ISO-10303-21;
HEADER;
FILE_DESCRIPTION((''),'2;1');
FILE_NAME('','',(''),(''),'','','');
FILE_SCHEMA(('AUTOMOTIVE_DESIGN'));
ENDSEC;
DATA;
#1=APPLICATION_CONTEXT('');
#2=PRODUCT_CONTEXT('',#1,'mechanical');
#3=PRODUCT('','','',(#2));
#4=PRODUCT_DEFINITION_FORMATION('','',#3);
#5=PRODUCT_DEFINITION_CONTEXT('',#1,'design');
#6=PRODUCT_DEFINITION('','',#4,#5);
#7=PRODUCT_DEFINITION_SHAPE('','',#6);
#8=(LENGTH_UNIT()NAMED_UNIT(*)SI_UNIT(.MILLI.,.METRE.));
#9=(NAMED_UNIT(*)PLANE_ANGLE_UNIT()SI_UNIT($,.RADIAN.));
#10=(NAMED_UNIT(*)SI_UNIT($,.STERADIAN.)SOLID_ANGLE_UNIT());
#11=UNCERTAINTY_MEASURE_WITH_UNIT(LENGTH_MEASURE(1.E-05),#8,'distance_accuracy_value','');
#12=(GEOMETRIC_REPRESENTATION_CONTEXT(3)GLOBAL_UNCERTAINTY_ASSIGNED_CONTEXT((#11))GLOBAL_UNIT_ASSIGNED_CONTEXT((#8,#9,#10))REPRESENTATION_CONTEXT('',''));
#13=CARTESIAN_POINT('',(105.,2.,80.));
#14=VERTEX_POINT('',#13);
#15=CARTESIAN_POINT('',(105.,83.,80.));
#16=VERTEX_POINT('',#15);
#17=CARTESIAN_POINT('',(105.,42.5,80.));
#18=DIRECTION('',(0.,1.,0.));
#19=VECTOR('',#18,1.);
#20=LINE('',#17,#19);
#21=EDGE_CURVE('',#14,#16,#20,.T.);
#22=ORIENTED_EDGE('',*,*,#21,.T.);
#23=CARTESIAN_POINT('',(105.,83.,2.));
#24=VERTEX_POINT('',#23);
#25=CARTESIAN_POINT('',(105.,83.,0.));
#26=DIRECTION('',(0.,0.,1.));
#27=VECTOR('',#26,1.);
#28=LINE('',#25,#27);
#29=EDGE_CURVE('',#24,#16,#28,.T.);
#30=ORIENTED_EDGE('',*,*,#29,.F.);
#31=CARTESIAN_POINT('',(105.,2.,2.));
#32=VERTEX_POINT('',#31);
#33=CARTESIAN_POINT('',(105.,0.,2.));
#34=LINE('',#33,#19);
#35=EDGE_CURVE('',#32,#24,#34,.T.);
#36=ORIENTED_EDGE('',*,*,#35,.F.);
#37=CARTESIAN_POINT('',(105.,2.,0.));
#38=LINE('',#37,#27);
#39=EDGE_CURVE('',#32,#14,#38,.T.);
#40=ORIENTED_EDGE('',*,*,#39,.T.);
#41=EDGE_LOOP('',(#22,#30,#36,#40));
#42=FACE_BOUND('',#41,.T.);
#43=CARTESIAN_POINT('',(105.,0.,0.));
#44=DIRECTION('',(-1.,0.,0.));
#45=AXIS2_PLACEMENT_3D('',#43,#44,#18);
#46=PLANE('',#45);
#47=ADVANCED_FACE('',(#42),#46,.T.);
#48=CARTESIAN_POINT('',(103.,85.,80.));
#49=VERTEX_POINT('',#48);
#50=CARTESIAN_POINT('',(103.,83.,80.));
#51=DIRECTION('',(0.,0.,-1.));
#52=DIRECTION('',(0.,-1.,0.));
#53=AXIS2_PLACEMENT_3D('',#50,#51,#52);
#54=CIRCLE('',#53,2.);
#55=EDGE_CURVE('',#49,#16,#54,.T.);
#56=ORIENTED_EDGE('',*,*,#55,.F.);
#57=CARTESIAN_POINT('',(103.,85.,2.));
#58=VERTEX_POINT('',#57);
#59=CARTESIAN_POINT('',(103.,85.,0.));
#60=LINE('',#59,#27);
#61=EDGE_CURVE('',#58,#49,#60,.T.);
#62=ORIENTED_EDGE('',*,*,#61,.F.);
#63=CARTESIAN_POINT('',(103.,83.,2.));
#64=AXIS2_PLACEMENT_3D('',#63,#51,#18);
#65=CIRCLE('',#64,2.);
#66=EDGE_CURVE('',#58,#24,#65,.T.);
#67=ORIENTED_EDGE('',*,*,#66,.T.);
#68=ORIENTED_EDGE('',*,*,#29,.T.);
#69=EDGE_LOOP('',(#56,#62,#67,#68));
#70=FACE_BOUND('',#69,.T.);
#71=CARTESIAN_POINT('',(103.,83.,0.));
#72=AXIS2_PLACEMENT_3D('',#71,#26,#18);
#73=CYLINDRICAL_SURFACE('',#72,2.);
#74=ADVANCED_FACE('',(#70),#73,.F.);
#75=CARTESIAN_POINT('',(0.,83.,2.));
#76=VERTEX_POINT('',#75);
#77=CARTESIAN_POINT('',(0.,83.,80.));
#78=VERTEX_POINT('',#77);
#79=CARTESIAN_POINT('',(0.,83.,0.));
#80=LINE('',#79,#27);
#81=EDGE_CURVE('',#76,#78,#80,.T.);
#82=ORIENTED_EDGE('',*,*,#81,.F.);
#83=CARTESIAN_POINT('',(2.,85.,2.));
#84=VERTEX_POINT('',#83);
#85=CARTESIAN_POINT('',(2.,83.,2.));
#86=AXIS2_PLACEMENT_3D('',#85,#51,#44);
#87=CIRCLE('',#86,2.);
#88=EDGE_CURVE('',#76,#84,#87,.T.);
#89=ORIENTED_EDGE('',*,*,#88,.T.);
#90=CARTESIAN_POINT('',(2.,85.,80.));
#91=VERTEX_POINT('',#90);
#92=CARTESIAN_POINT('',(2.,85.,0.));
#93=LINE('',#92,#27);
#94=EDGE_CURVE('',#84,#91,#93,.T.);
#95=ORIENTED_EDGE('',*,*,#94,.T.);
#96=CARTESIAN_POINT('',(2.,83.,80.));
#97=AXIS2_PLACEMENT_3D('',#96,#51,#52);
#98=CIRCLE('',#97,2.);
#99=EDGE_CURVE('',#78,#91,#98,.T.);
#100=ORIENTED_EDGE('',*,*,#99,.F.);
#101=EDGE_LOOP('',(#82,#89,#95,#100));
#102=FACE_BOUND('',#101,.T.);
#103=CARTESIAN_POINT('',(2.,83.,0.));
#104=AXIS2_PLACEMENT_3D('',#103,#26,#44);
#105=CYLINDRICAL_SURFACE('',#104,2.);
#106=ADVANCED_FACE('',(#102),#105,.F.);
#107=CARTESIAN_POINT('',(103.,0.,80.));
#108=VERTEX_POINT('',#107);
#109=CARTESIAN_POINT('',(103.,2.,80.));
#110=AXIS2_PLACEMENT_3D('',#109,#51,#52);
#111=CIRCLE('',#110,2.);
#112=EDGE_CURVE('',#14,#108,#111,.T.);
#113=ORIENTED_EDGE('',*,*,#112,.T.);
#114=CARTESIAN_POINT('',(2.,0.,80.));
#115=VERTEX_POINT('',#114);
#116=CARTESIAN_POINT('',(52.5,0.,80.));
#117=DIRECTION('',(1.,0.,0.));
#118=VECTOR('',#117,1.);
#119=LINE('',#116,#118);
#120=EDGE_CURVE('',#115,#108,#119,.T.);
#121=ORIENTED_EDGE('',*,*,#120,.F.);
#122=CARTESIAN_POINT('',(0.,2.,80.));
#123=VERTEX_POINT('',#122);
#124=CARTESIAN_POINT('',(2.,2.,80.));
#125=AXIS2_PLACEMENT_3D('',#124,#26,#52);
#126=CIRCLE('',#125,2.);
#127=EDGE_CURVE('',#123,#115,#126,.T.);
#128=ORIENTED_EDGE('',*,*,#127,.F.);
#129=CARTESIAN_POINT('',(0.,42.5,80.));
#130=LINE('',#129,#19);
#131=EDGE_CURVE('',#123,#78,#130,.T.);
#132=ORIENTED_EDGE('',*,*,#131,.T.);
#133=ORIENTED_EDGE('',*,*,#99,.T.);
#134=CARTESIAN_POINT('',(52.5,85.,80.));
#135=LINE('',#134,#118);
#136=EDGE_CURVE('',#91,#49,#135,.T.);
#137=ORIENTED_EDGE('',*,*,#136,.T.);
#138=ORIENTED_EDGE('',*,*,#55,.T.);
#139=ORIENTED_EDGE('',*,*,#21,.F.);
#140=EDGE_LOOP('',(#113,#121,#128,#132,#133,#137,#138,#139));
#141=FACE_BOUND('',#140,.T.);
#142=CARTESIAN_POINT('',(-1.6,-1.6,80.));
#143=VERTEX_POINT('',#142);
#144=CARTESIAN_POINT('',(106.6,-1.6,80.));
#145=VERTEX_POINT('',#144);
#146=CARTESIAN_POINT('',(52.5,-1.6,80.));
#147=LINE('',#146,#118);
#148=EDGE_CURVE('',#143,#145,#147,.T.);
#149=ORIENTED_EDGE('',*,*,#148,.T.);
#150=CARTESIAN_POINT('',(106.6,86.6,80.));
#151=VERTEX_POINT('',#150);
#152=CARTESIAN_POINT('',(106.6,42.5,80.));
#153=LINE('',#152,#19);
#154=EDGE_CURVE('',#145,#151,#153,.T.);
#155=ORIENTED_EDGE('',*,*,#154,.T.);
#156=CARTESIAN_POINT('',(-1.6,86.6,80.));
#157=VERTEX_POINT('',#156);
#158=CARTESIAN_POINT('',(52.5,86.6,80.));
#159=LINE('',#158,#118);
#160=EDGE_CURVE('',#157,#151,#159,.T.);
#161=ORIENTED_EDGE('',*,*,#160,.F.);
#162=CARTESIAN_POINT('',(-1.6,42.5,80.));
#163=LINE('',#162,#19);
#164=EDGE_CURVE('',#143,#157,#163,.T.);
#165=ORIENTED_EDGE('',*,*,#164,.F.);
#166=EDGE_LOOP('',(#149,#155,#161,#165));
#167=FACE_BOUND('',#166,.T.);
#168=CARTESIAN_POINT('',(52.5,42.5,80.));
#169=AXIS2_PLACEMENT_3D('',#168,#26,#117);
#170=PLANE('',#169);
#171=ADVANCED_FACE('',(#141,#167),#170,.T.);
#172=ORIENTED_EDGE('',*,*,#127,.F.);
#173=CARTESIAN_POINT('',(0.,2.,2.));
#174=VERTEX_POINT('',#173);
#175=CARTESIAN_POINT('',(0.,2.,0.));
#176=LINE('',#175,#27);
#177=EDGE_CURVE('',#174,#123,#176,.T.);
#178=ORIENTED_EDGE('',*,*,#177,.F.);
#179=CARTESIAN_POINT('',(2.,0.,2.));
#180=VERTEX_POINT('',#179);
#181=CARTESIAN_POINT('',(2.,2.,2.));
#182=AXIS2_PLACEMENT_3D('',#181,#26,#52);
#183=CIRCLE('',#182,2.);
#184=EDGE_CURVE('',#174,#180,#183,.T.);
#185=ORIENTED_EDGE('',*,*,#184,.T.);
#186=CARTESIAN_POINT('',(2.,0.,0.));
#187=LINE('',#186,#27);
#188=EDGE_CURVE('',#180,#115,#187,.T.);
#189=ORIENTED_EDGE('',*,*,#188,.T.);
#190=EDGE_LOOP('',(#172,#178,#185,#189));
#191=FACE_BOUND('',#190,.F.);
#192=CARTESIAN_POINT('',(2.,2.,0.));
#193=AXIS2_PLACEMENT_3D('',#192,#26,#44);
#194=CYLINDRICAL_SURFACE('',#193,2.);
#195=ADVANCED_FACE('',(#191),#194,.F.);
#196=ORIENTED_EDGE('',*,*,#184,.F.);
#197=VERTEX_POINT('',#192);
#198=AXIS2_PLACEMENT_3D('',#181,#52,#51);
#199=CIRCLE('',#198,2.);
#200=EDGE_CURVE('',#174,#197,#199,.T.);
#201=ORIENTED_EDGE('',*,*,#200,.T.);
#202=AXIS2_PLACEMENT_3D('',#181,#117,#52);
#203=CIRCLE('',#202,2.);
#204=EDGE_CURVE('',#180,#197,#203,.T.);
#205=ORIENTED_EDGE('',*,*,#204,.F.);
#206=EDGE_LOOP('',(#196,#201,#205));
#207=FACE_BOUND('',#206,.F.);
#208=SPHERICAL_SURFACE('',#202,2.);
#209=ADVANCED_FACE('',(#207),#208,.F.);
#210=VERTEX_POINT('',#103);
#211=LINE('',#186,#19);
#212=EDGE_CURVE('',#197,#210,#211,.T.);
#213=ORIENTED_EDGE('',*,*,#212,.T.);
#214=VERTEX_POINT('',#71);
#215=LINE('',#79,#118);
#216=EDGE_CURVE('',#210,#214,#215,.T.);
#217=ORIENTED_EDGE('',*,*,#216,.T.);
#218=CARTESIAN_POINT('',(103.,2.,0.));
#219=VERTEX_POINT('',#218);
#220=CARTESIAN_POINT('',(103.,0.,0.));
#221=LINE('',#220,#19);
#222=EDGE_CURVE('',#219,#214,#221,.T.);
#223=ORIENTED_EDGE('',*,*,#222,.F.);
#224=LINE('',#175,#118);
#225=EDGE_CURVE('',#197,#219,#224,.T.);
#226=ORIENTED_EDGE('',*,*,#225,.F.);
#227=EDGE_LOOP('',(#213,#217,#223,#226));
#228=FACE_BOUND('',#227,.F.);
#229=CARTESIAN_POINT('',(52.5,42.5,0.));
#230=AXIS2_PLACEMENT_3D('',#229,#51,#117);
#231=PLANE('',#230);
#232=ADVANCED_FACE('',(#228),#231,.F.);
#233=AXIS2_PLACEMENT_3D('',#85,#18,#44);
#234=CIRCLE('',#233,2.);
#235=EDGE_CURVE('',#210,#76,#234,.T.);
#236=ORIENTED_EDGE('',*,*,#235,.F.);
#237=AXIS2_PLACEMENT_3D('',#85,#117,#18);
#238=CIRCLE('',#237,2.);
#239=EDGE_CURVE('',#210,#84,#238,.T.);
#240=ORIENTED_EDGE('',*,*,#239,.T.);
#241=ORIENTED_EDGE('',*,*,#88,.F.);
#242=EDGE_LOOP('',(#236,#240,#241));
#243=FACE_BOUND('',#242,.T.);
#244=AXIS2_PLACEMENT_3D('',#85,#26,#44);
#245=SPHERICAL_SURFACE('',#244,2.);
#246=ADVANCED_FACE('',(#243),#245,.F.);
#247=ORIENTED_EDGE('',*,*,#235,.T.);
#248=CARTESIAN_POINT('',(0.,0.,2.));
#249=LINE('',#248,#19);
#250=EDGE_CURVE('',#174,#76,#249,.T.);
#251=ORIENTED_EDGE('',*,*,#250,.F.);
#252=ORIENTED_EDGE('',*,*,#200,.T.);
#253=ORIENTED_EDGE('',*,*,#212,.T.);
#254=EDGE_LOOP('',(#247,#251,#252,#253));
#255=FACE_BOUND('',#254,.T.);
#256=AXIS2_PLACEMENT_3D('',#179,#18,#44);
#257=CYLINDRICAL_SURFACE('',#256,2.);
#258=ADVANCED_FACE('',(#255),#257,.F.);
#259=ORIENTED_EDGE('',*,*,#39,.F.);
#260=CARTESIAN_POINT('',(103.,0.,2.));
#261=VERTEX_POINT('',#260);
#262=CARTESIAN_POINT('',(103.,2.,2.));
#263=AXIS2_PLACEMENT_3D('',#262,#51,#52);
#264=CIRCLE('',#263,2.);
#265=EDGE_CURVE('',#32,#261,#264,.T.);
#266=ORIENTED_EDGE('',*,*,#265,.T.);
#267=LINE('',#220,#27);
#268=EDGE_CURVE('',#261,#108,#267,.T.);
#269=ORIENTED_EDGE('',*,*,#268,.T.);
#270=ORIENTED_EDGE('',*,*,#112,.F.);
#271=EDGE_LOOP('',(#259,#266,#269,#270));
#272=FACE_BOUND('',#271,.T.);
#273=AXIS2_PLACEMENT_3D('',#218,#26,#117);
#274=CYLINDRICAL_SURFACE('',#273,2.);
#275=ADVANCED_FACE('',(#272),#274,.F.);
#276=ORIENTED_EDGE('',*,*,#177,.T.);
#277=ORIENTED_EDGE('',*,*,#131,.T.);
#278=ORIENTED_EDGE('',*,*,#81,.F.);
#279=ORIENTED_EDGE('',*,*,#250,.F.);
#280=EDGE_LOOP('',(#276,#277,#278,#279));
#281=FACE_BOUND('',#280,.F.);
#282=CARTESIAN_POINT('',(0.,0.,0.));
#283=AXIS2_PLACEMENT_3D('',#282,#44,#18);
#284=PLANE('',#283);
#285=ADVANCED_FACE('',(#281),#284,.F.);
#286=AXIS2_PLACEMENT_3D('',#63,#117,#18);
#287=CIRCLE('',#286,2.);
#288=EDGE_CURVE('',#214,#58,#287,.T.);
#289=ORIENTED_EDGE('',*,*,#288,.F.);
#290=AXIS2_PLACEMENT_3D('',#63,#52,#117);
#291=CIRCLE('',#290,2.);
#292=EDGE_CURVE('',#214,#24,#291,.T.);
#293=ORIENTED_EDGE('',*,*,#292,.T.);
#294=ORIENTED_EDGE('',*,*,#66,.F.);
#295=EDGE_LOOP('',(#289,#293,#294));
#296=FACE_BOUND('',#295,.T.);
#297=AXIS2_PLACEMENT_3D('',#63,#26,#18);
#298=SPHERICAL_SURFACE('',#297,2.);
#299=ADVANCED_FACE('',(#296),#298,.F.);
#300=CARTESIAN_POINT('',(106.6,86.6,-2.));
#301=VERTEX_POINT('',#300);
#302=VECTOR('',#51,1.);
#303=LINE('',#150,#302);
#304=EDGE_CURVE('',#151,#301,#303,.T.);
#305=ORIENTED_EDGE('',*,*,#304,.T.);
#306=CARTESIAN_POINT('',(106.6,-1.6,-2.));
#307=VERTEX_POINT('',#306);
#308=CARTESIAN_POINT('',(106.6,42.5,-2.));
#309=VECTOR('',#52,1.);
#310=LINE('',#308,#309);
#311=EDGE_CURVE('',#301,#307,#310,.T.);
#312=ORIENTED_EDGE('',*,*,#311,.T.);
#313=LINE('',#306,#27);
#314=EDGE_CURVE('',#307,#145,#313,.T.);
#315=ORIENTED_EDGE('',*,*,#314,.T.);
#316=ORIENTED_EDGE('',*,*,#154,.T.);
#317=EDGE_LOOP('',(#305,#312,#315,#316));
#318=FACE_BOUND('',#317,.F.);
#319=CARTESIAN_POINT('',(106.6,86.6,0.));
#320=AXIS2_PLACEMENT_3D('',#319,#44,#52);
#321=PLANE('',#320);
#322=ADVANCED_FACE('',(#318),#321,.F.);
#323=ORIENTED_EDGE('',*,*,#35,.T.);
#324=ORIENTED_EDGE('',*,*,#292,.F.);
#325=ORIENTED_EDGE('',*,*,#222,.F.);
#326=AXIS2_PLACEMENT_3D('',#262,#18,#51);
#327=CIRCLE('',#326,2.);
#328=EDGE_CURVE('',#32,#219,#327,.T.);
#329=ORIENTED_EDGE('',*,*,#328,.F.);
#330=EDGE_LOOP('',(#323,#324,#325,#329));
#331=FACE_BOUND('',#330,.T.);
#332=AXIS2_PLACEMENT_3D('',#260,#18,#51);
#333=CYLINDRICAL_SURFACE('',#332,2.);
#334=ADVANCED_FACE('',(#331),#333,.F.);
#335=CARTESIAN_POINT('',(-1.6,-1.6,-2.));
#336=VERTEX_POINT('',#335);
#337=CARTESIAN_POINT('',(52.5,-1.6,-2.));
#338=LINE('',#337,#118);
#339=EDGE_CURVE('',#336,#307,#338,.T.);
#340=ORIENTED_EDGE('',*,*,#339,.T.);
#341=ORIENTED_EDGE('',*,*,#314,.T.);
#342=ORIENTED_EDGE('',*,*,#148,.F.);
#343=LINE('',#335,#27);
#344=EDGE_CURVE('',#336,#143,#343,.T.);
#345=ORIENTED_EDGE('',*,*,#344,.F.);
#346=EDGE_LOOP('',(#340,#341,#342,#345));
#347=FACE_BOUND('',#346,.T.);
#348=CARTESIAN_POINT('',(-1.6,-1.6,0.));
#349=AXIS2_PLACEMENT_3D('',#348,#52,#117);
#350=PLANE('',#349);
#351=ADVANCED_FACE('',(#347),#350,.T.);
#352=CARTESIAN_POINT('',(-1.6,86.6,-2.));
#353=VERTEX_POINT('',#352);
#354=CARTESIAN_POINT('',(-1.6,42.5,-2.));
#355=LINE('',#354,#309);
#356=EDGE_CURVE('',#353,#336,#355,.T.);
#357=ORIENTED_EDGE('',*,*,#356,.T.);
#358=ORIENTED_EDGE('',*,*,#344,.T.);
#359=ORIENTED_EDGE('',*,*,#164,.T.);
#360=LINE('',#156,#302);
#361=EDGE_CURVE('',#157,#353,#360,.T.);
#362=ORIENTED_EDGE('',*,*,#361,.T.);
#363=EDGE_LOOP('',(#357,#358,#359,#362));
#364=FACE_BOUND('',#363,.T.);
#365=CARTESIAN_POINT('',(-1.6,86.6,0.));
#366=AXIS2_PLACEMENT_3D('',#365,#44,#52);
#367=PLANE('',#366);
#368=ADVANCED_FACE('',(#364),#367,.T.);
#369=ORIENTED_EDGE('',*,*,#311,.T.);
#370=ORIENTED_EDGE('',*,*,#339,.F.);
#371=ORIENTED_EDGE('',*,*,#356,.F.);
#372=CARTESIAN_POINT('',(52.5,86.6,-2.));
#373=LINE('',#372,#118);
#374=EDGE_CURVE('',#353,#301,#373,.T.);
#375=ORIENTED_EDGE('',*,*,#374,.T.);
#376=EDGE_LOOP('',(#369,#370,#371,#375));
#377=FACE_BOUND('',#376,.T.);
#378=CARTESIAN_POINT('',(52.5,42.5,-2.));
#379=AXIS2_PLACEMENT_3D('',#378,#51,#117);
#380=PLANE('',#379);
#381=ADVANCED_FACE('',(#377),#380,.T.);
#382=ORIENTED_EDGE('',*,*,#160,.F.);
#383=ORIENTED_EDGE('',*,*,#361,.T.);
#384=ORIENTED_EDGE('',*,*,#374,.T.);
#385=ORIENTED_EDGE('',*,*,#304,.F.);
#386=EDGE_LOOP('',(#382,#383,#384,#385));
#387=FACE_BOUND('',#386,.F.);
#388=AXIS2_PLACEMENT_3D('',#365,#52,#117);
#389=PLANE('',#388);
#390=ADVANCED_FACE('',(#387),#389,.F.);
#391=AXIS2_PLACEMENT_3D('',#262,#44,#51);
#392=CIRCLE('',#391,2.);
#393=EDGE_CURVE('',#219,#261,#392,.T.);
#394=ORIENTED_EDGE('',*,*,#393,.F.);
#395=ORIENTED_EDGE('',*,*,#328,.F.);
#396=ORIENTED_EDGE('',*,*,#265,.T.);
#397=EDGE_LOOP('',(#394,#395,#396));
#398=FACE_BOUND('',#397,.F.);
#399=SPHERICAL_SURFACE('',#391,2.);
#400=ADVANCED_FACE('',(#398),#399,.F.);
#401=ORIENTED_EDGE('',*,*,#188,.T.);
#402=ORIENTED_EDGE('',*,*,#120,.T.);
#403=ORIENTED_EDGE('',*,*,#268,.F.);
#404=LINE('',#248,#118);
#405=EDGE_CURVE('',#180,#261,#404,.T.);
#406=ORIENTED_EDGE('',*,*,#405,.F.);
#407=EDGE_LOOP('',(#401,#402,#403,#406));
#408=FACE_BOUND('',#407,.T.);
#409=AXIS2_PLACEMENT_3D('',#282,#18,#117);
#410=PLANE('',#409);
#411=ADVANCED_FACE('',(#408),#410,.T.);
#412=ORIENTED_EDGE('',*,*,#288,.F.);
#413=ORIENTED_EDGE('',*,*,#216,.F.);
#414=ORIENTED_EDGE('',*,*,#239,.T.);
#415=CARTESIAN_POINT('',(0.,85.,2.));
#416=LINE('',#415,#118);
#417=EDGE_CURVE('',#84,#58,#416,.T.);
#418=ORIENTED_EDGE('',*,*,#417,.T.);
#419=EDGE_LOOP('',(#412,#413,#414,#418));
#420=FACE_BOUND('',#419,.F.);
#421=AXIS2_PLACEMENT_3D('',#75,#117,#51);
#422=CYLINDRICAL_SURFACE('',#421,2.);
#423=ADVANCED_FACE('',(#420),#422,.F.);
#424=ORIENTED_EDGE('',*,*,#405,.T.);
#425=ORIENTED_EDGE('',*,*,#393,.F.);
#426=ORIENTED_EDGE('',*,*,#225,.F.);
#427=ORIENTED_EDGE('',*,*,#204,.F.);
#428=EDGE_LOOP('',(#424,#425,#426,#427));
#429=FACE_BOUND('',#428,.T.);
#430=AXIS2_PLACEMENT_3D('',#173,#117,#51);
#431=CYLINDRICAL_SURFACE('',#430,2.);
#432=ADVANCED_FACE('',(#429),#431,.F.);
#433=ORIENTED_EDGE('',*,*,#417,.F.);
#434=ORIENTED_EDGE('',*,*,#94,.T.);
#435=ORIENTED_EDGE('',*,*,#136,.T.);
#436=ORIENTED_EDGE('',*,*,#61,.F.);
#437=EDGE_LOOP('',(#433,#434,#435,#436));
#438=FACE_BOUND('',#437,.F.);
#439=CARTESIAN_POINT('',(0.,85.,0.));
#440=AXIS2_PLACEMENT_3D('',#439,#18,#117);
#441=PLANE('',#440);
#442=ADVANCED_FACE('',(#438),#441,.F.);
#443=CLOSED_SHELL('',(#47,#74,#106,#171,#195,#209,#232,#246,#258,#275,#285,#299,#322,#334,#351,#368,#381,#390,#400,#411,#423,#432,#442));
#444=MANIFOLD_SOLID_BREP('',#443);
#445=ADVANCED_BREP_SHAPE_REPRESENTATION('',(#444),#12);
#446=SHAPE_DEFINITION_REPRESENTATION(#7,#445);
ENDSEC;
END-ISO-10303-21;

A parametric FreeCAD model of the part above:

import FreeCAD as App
import Part
import Sketcher


def edges_at(feature, points):
    """Names of the edges that pass closest to the given points."""
    edges = feature.Shape.Edges
    near = lambda p: min(range(len(edges)), key=lambda i: edges[i].distToShape(Part.Vertex(*p))[0])
    return sorted({f"Edge{near(p) + 1}" for p in points})


def add_polygon(sketch, points):
    """Adds a closed chain of lines whose ends are joined by coincident constraints."""
    first, n = sketch.GeometryCount, len(points)
    for a, b in zip(points, points[1:] + points[:1]):
        sketch.addGeometry(Part.LineSegment(App.Vector(*a, 0), App.Vector(*b, 0)), False)
    for i in range(n):
        sketch.addConstraint(Sketcher.Constraint("Coincident", first + i, 2, first + (i + 1) % n, 1))

doc = App.newDocument("Part")
body = doc.addObject("PartDesign::Body", "Body")

# Sketch on XY plane
sketch1 = body.newObject("Sketcher::SketchObject", "Sketch")
sketch1.AttachmentSupport = (doc.getObject("XY_Plane"), [""])
sketch1.MapMode = "FlatFace"
add_polygon(sketch1, [(-1.6, 86.6), (-1.6, -1.6), (106.6, -1.6), (106.6, 86.6)])  # lines 0-3
add_polygon(sketch1, [(105, 0), (0, 0), (0, 85), (105, 85)])  # lines 4-7
sketch1.addConstraint([
    Sketcher.Constraint("Vertical", 0),
    Sketcher.Constraint("Horizontal", 1),
    Sketcher.Constraint("Vertical", 2),
    Sketcher.Constraint("Horizontal", 3),
    Sketcher.Constraint("Horizontal", 4),
    Sketcher.Constraint("Vertical", 5),
    Sketcher.Constraint("Horizontal", 6),
    Sketcher.Constraint("Vertical", 7),
    Sketcher.Constraint("Coincident", 4, 2, -1, 1),
    Sketcher.Constraint("DistanceX", 4, 2, 4, 1, 105.0),
    Sketcher.Constraint("DistanceY", 5, 1, 5, 2, 85.0),
    Sketcher.Constraint("DistanceX", 1, 1, 1, 2, 108.2),
    Sketcher.Constraint("DistanceY", 0, 2, 0, 1, 88.2),
    Sketcher.Constraint("DistanceX", 0, 2, -1, 1, 1.6),
    Sketcher.Constraint("DistanceY", 0, 2, -1, 1, 1.6),
])
pad1 = body.newObject("PartDesign::Pad", "Pad")
pad1.Profile = sketch1
pad1.Length = 80

# Sketch on XY plane
sketch2 = body.newObject("Sketcher::SketchObject", "Sketch001")
sketch2.AttachmentSupport = (doc.getObject("XY_Plane"), [""])
sketch2.MapMode = "FlatFace"
add_polygon(sketch2, [(-1.6, -1.6), (-1.6, 86.6), (106.6, 86.6), (106.6, -1.6)])  # lines 0-3
sketch2.addConstraint([
    Sketcher.Constraint("Vertical", 0),
    Sketcher.Constraint("Horizontal", 1),
    Sketcher.Constraint("Vertical", 2),
    Sketcher.Constraint("Horizontal", 3),
    Sketcher.Constraint("DistanceX", 1, 1, 1, 2, 108.2),
    Sketcher.Constraint("DistanceY", 0, 1, 0, 2, 88.2),
    Sketcher.Constraint("DistanceX", 0, 2, -1, 1, 1.6),
    Sketcher.Constraint("DistanceY", -1, 1, 0, 2, 86.6),
])
pad2 = body.newObject("PartDesign::Pad", "Pad001")
pad2.Profile = sketch2
pad2.Length = 2
pad2.Reversed = True
doc.recompute()

fillet = body.newObject("PartDesign::Fillet", "Fillet")
fillet.Base = (pad2, edges_at(pad2, [
    (0, 85, 40),
    (105, 85, 40),
    (52.5, 0, 0),
    (0, 0, 40),
    (0, 42.5, 0),
    (52.5, 85, 0),
    (105, 42.5, 0),
    (105, 0, 40),
]))
fillet.Radius = 2

doc.recompute()
